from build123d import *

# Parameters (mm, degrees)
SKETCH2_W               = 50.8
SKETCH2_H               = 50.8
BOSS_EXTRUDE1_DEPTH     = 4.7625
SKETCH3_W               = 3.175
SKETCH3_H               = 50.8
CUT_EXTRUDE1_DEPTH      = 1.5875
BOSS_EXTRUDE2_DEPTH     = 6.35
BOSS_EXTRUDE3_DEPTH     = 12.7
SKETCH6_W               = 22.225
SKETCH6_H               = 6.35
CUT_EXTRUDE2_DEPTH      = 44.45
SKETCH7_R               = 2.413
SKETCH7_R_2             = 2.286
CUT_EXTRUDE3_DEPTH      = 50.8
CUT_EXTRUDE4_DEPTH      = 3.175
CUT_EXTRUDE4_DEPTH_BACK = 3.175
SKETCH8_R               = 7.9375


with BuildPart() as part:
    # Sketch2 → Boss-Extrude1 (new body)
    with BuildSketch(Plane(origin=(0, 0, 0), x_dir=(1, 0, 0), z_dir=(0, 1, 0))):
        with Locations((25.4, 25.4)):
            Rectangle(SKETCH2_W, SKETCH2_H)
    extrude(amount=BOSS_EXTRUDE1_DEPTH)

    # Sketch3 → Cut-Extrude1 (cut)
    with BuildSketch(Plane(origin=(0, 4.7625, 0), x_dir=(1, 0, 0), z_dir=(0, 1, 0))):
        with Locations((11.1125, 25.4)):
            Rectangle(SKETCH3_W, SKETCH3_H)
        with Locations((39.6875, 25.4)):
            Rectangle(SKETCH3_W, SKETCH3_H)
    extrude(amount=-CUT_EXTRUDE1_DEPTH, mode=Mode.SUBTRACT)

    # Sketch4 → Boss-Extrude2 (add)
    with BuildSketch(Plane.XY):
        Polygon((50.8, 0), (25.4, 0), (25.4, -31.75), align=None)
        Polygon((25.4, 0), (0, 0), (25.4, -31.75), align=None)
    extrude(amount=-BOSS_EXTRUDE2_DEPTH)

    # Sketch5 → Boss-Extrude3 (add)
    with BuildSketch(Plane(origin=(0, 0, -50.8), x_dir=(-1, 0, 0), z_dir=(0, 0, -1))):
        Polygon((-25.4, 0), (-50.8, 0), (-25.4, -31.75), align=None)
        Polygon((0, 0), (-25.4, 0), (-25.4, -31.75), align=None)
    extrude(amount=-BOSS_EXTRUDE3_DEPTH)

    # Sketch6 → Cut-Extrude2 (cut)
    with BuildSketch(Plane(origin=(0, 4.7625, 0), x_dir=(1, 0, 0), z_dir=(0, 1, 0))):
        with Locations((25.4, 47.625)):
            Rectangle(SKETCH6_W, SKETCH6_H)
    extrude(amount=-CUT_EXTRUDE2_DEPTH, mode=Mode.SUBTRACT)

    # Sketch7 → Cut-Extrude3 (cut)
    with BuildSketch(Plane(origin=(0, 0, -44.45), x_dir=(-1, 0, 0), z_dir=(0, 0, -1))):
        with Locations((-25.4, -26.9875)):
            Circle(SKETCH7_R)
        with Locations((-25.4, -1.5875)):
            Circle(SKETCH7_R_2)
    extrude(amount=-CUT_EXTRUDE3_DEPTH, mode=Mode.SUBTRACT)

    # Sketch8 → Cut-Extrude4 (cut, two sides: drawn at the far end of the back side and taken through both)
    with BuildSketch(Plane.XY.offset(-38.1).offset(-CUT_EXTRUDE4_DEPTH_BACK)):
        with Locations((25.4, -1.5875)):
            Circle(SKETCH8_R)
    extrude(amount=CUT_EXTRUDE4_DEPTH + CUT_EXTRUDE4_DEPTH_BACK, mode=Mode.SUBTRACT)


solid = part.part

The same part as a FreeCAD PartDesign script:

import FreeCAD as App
import Part
import Sketcher
Q = App.Units.Quantity

doc = App.newDocument("Part")
body = doc.addObject("PartDesign::Body", "Body")

sketch1 = doc.addObject("Sketcher::SketchObject", "Sketch")
body.addObject(sketch1)
sketch1.AttachmentSupport = (doc.XZ_Plane, [""])
sketch1.MapMode = "FlatFace"
sketch1.addGeometry(Part.LineSegment(App.Vector(0, -50.8, 0), App.Vector(0, 0, 0)), False)
sketch1.addGeometry(Part.LineSegment(App.Vector(0, 0, 0), App.Vector(50.8, 0, 0)), False)
sketch1.addGeometry(Part.LineSegment(App.Vector(50.8, 0, 0), App.Vector(50.8, -50.8, 0)), False)
sketch1.addGeometry(Part.LineSegment(App.Vector(50.8, -50.8, 0), App.Vector(0, -50.8, 0)), False)
sketch1.addConstraint(Sketcher.Constraint("Coincident", 0, 2, 1, 1))
sketch1.addConstraint(Sketcher.Constraint("Coincident", 1, 2, 2, 1))
sketch1.addConstraint(Sketcher.Constraint("Coincident", 2, 2, 3, 1))
sketch1.addConstraint(Sketcher.Constraint("Coincident", 3, 2, 0, 1))
sketch1.addConstraint(Sketcher.Constraint("Vertical", 0))
sketch1.addConstraint(Sketcher.Constraint("Horizontal", 1))
sketch1.addConstraint(Sketcher.Constraint("Vertical", 2))
sketch1.addConstraint(Sketcher.Constraint("Horizontal", 3))
sketch1.addConstraint(Sketcher.Constraint("Coincident", 0, 2, -1, 1))
sketch1.addConstraint(Sketcher.Constraint("Equal", 3, 0))
sketch1.addConstraint(Sketcher.Constraint("DistanceX", 1, 1, 1, 2, Q("2 in")))
pad1 = doc.addObject("PartDesign::Pad", "Pad")
body.addObject(pad1)
pad1.Profile = sketch1
pad1.Length = Q("0.1875 in")
pad1.Reversed = True

sketch2 = doc.addObject("Sketcher::SketchObject", "Sketch001")
body.addObject(sketch2)
sketch2.AttachmentSupport = (doc.XZ_Plane, [""])
sketch2.MapMode = "FlatFace"
sketch2.AttachmentOffset = App.Placement(App.Vector(0, 0, -0.1875 * 25.4), App.Rotation())
sketch2.addGeometry(Part.LineSegment(App.Vector(9.525, -50.8, 0), App.Vector(9.525, 0, 0)), False)
sketch2.addGeometry(Part.LineSegment(App.Vector(9.525, 0, 0), App.Vector(12.7, 0, 0)), False)
sketch2.addGeometry(Part.LineSegment(App.Vector(12.7, 0, 0), App.Vector(12.7, -50.8, 0)), False)
sketch2.addGeometry(Part.LineSegment(App.Vector(12.7, -50.8, 0), App.Vector(9.525, -50.8, 0)), False)
sketch2.addGeometry(Part.LineSegment(App.Vector(38.1, -50.8, 0), App.Vector(38.1, 0, 0)), False)
sketch2.addGeometry(Part.LineSegment(App.Vector(38.1, 0, 0), App.Vector(41.275, 0, 0)), False)
sketch2.addGeometry(Part.LineSegment(App.Vector(41.275, 0, 0), App.Vector(41.275, -50.8, 0)), False)
sketch2.addGeometry(Part.LineSegment(App.Vector(41.275, -50.8, 0), App.Vector(38.1, -50.8, 0)), False)
sketch2.addConstraint(Sketcher.Constraint("Coincident", 0, 2, 1, 1))
sketch2.addConstraint(Sketcher.Constraint("Coincident", 1, 2, 2, 1))
sketch2.addConstraint(Sketcher.Constraint("Coincident", 2, 2, 3, 1))
sketch2.addConstraint(Sketcher.Constraint("Coincident", 3, 2, 0, 1))
sketch2.addConstraint(Sketcher.Constraint("Coincident", 4, 2, 5, 1))
sketch2.addConstraint(Sketcher.Constraint("Coincident", 5, 2, 6, 1))
sketch2.addConstraint(Sketcher.Constraint("Coincident", 6, 2, 7, 1))
sketch2.addConstraint(Sketcher.Constraint("Coincident", 7, 2, 4, 1))
sketch2.addConstraint(Sketcher.Constraint("Vertical", 0))
sketch2.addConstraint(Sketcher.Constraint("Horizontal", 1))
sketch2.addConstraint(Sketcher.Constraint("Vertical", 2))
sketch2.addConstraint(Sketcher.Constraint("Horizontal", 3))
sketch2.addConstraint(Sketcher.Constraint("Vertical", 4))
sketch2.addConstraint(Sketcher.Constraint("Horizontal", 5))
sketch2.addConstraint(Sketcher.Constraint("Vertical", 6))
sketch2.addConstraint(Sketcher.Constraint("Horizontal", 7))
sketch2.addConstraint(Sketcher.Constraint("PointOnObject", 0, 2, -1))
sketch2.addConstraint(Sketcher.Constraint("PointOnObject", 4, 2, -1))
sketch2.addConstraint(Sketcher.Constraint("Horizontal", 3, 2, 6, 2))
sketch2.addConstraint(Sketcher.Constraint("Equal", 3, 5))
sketch2.addConstraint(Sketcher.Constraint("DistanceY", 0, 1, 0, 2, Q("2 in")))
sketch2.addConstraint(Sketcher.Constraint("DistanceX", 1, 2, 4, 2, Q("1 in")))
sketch2.addConstraint(Sketcher.Constraint("DistanceX", -1, 1, 1, 2, Q("0.5 in")))
sketch2.addConstraint(Sketcher.Constraint("DistanceX", 1, 1, 1, 2, Q("0.125 in")))
pocket1 = doc.addObject("PartDesign::Pocket", "Pocket")
body.addObject(pocket1)
pocket1.Profile = sketch2
pocket1.Length = Q("0.0625 in")
pocket1.Reversed = True

sketch3 = doc.addObject("Sketcher::SketchObject", "Sketch002")
body.addObject(sketch3)
sketch3.AttachmentSupport = (doc.XY_Plane, [""])
sketch3.MapMode = "FlatFace"
sketch3.addGeometry(Part.LineSegment(App.Vector(50.8, 0, 0), App.Vector(0, 0, 0)), False)
sketch3.addGeometry(Part.LineSegment(App.Vector(0, 0, 0), App.Vector(25.4, -31.75, 0)), False)
sketch3.addGeometry(Part.LineSegment(App.Vector(25.4, -31.75, 0), App.Vector(50.8, 0, 0)), False)
sketch3.addConstraint(Sketcher.Constraint("Coincident", 0, 2, 1, 1))
sketch3.addConstraint(Sketcher.Constraint("Coincident", 1, 2, 2, 1))
sketch3.addConstraint(Sketcher.Constraint("Coincident", 2, 2, 0, 1))
sketch3.addConstraint(Sketcher.Constraint("Horizontal", 0))
sketch3.addConstraint(Sketcher.Constraint("Coincident", 0, 2, -1, 1))
sketch3.addConstraint(Sketcher.Constraint("Equal", 1, 2))
sketch3.addConstraint(Sketcher.Constraint("DistanceX", 0, 2, 0, 1, Q("2 in")))
sketch3.addConstraint(Sketcher.Constraint("DistanceY", 1, 2, -1, 1, Q("1.25 in")))
pad2 = doc.addObject("PartDesign::Pad", "Pad001")
body.addObject(pad2)
pad2.Profile = sketch3
pad2.Length = Q("0.25 in")
pad2.Reversed = True

sketch4 = doc.addObject("Sketcher::SketchObject", "Sketch003")
body.addObject(sketch4)
sketch4.AttachmentSupport = (doc.XY_Plane, [""])
sketch4.MapMode = "FlatFace"
sketch4.AttachmentOffset = App.Placement(App.Vector(0, 0, -2 * 25.4), App.Rotation())
sketch4.addGeometry(Part.LineSegment(App.Vector(50.8, 0, 0), App.Vector(25.4, -31.75, 0)), False)
sketch4.addGeometry(Part.LineSegment(App.Vector(25.4, -31.75, 0), App.Vector(0, 0, 0)), False)
sketch4.addGeometry(Part.LineSegment(App.Vector(0, 0, 0), App.Vector(50.8, 0, 0)), False)
sketch4.addConstraint(Sketcher.Constraint("Coincident", 0, 2, 1, 1))
sketch4.addConstraint(Sketcher.Constraint("Coincident", 1, 2, 2, 1))
sketch4.addConstraint(Sketcher.Constraint("Coincident", 2, 2, 0, 1))
sketch4.addConstraint(Sketcher.Constraint("Horizontal", 2))
sketch4.addConstraint(Sketcher.Constraint("Coincident", 1, 2, -1, 1))
sketch4.addConstraint(Sketcher.Constraint("Equal", 0, 1))
sketch4.addConstraint(Sketcher.Constraint("DistanceX", 2, 1, 2, 2, Q("2 in")))
sketch4.addConstraint(Sketcher.Constraint("DistanceY", 0, 2, -1, 1, Q("1.25 in")))
pad3 = doc.addObject("PartDesign::Pad", "Pad002")
body.addObject(pad3)
pad3.Profile = sketch4
pad3.Length = Q("0.5 in")

sketch5 = doc.addObject("Sketcher::SketchObject", "Sketch004")
body.addObject(sketch5)
sketch5.AttachmentSupport = (doc.XZ_Plane, [""])
sketch5.MapMode = "FlatFace"
sketch5.AttachmentOffset = App.Placement(App.Vector(0, 0, -0.1875 * 25.4), App.Rotation())
sketch5.addGeometry(Part.LineSegment(App.Vector(14.2875, -50.8, 0), App.Vector(14.2875, -44.45, 0)), False)
sketch5.addGeometry(Part.LineSegment(App.Vector(14.2875, -44.45, 0), App.Vector(36.5125, -44.45, 0)), False)
sketch5.addGeometry(Part.LineSegment(App.Vector(36.5125, -44.45, 0), App.Vector(36.5125, -50.8, 0)), False)
sketch5.addGeometry(Part.LineSegment(App.Vector(36.5125, -50.8, 0), App.Vector(14.2875, -50.8, 0)), False)
sketch5.addConstraint(Sketcher.Constraint("Coincident", 0, 2, 1, 1))
sketch5.addConstraint(Sketcher.Constraint("Coincident", 1, 2, 2, 1))
sketch5.addConstraint(Sketcher.Constraint("Coincident", 2, 2, 3, 1))
sketch5.addConstraint(Sketcher.Constraint("Coincident", 3, 2, 0, 1))
sketch5.addConstraint(Sketcher.Constraint("Vertical", 0))
sketch5.addConstraint(Sketcher.Constraint("Horizontal", 1))
sketch5.addConstraint(Sketcher.Constraint("Vertical", 2))
sketch5.addConstraint(Sketcher.Constraint("Horizontal", 3))
sketch5.addConstraint(Sketcher.Constraint("DistanceY", 2, 2, -1, 1, Q("2 in")))
sketch5.addConstraint(Sketcher.Constraint("DistanceY", 0, 1, 0, 2, Q("0.25 in")))
sketch5.addConstraint(Sketcher.Constraint("DistanceX", 1, 1, 1, 2, Q("0.875 in")))
sketch5.addConstraint(Sketcher.Constraint("DistanceX", -1, 1, 0, 2, Q("0.5625 in")))
pocket2 = doc.addObject("PartDesign::Pocket", "Pocket001")
body.addObject(pocket2)
pocket2.Profile = sketch5
pocket2.Length = Q("1.75 in")
pocket2.Reversed = True

sketch6 = doc.addObject("Sketcher::SketchObject", "Sketch005")
body.addObject(sketch6)
sketch6.AttachmentSupport = (doc.XY_Plane, [""])
sketch6.MapMode = "FlatFace"
sketch6.AttachmentOffset = App.Placement(App.Vector(0, 0, -1.75 * 25.4), App.Rotation())
sketch6.addGeometry(Part.Circle(App.Vector(25.4, -26.9875, 0), App.Vector(0, 0, 1), 2.413), False)
sketch6.addGeometry(Part.Circle(App.Vector(25.4, -1.5875, 0), App.Vector(0, 0, 1), 2.286), False)
sketch6.addConstraint(Sketcher.Constraint("Vertical", 0, 3, 1, 3))
sketch6.addConstraint(Sketcher.Constraint("Diameter", 0, Q("0.19 in")))
sketch6.addConstraint(Sketcher.Constraint("Diameter", 1, Q("0.18 in")))
sketch6.addConstraint(Sketcher.Constraint("DistanceX", -1, 1, 0, 3, Q("1 in")))
sketch6.addConstraint(Sketcher.Constraint("DistanceY", 0, 3, 1, 3, Q("1 in")))
sketch6.addConstraint(Sketcher.Constraint("DistanceY", 0, 3, -1, 1, Q("1.0625 in")))
pocket3 = doc.addObject("PartDesign::Pocket", "Pocket002")
body.addObject(pocket3)
pocket3.Profile = sketch6
pocket3.Length = Q("2 in")
pocket3.Reversed = True

sketch7 = doc.addObject("Sketcher::SketchObject", "Sketch006")
body.addObject(sketch7)
sketch7.AttachmentSupport = (doc.XY_Plane, [""])
sketch7.MapMode = "FlatFace"
sketch7.AttachmentOffset = App.Placement(App.Vector(0, 0, -1.5 * 25.4), App.Rotation())
sketch7.addGeometry(Part.Circle(App.Vector(25.4, -1.5875, 0), App.Vector(0, 0, 1), 7.9375), False)
sketch7.addConstraint(Sketcher.Constraint("Diameter", 0, Q("0.625 in")))
sketch7.addConstraint(Sketcher.Constraint("DistanceX", -1, 1, 0, 3, Q("1 in")))
sketch7.addConstraint(Sketcher.Constraint("DistanceY", 0, 3, -1, 1, Q("0.0625 in")))
pocket4 = doc.addObject("PartDesign::Pocket", "Pocket003")
body.addObject(pocket4)
pocket4.Profile = sketch7
pocket4.Type = "TwoLengths"
pocket4.Length = Q("0.125 in")
pocket4.Length2 = Q("0.125 in")
pocket4.Reversed = True

doc.recompute()
